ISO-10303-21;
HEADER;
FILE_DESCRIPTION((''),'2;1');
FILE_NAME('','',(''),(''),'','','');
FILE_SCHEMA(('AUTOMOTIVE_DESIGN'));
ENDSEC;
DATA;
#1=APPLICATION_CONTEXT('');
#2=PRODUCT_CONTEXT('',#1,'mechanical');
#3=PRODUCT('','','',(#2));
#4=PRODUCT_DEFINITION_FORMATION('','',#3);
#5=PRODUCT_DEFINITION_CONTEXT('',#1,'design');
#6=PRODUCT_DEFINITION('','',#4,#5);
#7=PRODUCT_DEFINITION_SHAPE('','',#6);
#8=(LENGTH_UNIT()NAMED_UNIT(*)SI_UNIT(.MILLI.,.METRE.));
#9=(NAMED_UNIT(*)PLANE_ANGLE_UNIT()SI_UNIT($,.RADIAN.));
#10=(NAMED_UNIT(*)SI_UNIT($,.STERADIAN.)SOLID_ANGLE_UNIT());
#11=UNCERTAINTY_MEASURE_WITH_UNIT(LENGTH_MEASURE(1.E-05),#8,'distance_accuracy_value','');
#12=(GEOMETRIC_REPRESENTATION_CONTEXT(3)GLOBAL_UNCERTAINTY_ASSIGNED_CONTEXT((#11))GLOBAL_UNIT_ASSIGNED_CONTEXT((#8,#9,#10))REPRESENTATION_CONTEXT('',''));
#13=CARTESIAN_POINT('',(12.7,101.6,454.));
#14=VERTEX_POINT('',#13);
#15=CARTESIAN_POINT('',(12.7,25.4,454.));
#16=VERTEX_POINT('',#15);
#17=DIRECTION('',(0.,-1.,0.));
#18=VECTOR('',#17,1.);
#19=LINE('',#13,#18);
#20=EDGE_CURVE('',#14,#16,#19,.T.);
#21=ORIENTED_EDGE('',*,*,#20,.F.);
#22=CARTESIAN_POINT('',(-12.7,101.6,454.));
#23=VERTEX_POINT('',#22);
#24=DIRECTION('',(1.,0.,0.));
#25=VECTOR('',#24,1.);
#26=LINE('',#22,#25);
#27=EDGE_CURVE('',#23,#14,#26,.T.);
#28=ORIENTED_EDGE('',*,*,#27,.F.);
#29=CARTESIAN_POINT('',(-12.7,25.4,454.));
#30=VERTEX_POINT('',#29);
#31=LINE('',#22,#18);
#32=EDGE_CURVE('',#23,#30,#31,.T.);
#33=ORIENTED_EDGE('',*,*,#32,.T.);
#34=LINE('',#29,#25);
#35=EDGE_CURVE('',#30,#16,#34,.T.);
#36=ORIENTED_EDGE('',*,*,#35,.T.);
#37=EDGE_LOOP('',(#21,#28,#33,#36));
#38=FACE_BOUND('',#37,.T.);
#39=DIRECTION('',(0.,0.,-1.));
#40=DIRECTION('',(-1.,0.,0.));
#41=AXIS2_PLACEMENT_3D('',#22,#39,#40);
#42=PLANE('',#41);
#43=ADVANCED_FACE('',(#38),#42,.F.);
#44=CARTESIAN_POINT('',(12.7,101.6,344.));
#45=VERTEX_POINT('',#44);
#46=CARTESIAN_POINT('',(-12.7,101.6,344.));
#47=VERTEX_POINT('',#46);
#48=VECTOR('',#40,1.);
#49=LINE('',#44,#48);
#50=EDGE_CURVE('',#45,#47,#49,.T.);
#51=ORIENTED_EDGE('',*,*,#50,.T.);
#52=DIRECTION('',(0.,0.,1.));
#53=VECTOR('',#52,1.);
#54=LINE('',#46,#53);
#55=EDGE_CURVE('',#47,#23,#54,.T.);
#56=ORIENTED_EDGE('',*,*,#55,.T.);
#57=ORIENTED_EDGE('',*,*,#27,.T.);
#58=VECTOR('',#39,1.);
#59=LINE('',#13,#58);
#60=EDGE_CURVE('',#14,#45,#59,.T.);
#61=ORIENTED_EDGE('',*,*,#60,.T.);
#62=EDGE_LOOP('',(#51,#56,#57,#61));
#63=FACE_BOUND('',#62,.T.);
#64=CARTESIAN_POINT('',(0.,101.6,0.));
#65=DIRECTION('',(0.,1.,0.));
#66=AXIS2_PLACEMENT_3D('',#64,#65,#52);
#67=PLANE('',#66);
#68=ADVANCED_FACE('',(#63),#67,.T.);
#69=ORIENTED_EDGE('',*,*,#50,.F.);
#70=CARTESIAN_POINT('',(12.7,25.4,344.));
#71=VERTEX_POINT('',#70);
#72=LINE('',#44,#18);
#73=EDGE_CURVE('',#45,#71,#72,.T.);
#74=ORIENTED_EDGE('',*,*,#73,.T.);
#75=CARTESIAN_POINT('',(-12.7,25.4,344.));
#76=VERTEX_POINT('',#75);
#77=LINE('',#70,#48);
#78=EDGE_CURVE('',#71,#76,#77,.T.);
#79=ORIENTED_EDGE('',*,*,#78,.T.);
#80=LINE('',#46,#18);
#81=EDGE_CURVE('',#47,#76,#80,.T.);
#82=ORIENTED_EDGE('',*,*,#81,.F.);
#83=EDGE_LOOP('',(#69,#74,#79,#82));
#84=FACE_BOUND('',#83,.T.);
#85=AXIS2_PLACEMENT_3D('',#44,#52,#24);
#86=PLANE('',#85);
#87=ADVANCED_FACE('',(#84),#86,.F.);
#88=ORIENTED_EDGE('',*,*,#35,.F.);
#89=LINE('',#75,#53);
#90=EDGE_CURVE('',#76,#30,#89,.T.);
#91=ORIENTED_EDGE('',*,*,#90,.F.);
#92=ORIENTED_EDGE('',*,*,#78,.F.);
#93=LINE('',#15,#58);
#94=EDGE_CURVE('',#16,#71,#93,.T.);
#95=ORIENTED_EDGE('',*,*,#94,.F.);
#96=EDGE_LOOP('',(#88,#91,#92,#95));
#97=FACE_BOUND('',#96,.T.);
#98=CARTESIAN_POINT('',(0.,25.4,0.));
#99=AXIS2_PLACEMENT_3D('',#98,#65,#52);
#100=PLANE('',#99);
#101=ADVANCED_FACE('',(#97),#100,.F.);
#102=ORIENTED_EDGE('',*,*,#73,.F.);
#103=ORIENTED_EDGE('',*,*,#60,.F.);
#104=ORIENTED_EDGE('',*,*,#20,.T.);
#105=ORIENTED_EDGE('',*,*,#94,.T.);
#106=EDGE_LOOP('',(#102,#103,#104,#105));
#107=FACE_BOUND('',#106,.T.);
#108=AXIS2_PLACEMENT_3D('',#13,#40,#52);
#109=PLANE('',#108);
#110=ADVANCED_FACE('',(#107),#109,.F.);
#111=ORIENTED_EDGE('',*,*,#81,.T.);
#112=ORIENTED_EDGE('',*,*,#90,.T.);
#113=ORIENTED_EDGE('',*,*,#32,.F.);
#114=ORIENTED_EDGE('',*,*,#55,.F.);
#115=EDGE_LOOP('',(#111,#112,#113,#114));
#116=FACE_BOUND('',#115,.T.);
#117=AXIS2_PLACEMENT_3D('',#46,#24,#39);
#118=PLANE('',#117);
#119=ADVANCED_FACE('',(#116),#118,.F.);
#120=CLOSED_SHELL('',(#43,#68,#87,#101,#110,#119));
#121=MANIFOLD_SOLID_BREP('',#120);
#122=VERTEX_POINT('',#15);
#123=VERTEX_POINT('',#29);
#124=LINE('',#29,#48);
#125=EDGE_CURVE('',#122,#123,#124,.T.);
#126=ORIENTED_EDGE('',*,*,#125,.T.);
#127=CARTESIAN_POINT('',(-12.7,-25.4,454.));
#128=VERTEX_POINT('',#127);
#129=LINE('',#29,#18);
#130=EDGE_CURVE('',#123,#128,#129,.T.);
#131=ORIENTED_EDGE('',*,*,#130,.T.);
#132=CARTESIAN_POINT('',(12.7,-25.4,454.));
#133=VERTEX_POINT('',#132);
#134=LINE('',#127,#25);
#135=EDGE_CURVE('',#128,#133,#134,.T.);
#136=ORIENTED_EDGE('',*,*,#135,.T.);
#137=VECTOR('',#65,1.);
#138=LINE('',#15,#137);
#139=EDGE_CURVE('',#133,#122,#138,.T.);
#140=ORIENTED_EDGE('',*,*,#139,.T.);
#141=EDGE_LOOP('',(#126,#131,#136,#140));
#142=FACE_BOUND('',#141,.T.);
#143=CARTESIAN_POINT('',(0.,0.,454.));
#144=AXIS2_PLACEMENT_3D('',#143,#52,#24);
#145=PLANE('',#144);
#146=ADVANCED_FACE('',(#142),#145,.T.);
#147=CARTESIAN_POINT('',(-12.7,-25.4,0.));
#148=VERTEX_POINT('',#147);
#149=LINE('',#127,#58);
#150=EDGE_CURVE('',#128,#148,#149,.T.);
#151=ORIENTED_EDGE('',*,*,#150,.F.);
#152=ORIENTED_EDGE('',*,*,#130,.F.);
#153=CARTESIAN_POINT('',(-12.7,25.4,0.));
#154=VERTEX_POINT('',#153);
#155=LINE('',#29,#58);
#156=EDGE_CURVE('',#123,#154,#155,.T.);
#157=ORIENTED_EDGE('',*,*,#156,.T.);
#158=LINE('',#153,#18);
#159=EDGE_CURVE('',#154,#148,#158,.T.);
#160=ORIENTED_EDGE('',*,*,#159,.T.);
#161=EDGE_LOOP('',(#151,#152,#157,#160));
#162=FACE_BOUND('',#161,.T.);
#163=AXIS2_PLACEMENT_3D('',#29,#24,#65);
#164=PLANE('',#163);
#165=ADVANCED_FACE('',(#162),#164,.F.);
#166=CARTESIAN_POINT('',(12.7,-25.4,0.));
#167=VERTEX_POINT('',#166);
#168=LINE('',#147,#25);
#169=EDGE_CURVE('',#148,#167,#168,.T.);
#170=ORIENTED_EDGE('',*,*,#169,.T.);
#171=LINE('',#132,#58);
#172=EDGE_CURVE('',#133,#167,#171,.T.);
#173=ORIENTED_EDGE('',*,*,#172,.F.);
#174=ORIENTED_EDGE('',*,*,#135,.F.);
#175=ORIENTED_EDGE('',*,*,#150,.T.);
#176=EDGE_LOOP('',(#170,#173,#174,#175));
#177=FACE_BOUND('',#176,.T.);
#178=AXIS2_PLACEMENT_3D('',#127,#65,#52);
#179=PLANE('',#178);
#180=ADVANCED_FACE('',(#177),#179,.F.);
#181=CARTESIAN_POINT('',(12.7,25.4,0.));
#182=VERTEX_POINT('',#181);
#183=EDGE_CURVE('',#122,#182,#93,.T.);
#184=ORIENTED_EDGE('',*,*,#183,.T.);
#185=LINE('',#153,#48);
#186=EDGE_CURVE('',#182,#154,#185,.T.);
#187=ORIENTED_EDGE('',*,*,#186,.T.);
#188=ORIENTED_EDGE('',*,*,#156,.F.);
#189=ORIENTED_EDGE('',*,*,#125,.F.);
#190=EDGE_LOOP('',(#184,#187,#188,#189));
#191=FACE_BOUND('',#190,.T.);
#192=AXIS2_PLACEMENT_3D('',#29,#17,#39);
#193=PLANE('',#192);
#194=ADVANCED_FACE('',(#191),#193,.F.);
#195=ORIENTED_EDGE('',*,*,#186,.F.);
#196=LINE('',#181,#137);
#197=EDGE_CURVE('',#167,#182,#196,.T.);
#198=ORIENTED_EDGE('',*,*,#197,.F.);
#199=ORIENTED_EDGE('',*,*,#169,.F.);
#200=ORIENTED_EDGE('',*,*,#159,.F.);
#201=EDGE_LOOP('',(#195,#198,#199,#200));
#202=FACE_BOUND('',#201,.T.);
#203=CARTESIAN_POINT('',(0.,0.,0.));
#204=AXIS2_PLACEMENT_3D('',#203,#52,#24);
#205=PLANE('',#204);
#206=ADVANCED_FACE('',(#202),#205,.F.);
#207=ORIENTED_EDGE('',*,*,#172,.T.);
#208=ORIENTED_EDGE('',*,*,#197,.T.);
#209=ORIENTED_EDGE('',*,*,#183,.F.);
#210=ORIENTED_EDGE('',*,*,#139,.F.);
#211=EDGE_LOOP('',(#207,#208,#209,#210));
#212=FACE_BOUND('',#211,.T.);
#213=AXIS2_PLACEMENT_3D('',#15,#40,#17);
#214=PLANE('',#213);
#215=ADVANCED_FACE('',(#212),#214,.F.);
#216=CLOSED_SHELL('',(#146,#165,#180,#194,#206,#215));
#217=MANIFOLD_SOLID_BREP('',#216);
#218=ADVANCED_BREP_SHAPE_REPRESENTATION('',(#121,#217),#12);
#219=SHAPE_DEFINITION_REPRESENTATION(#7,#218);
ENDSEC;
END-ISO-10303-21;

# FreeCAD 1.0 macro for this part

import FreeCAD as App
import Part
import Sketcher
Q = App.Units.Quantity

doc = App.newDocument("Part")
body = doc.addObject("PartDesign::Body", "Body")

# Sketch on XY plane
sketch1 = body.newObject("Sketcher::SketchObject", "Sketch")
sketch1.AttachmentSupport = (doc.getObject("XY_Plane"), [""])
sketch1.MapMode = "FlatFace"
sketch1.addGeometry(Part.LineSegment(App.Vector(-12.7, 25.4, 0), App.Vector(-12.7, -25.4, 0)), False)
sketch1.addGeometry(Part.LineSegment(App.Vector(-12.7, -25.4, 0), App.Vector(12.7, -25.4, 0)), False)
sketch1.addGeometry(Part.LineSegment(App.Vector(12.7, -25.4, 0), App.Vector(12.7, 25.4, 0)), False)
sketch1.addGeometry(Part.LineSegment(App.Vector(12.7, 25.4, 0), App.Vector(-12.7, 25.4, 0)), False)
sketch1.addConstraint(Sketcher.Constraint("Coincident", 0, 2, 1, 1))
sketch1.addConstraint(Sketcher.Constraint("Coincident", 1, 2, 2, 1))
sketch1.addConstraint(Sketcher.Constraint("Coincident", 2, 2, 3, 1))
sketch1.addConstraint(Sketcher.Constraint("Coincident", 3, 2, 0, 1))
sketch1.addConstraint(Sketcher.Constraint("Vertical", 0))
sketch1.addConstraint(Sketcher.Constraint("Horizontal", 1))
sketch1.addConstraint(Sketcher.Constraint("Vertical", 2))
sketch1.addConstraint(Sketcher.Constraint("Horizontal", 3))
sketch1.addConstraint(Sketcher.Constraint("Symmetric", 0, 2, 2, 2, -1, 1))
sketch1.addConstraint(Sketcher.Constraint("DistanceX", 1, 1, 1, 2, Q("1 in")))
sketch1.addConstraint(Sketcher.Constraint("DistanceY", 0, 2, 0, 1, Q("2 in")))
pad1 = body.newObject("PartDesign::Pad", "Pad")
pad1.Profile = sketch1
pad1.Length = 454
body2 = doc.addObject("PartDesign::Body", "Body001")

# Sketch on XZ plane
sketch2 = body2.newObject("Sketcher::SketchObject", "Sketch001")
sketch2.AttachmentSupport = (doc.getObject("XZ_Plane001"), [""])
sketch2.MapMode = "FlatFace"
sketch2.AttachmentOffset = App.Placement(App.Vector(0, 0, -1 * 25.4), App.Rotation())
sketch2.addGeometry(Part.LineSegment(App.Vector(-12.7, 344, 0), App.Vector(-12.7, 454, 0)), False)
sketch2.addGeometry(Part.LineSegment(App.Vector(-12.7, 454, 0), App.Vector(12.7, 454, 0)), False)
sketch2.addGeometry(Part.LineSegment(App.Vector(12.7, 454, 0), App.Vector(12.7, 344, 0)), False)
sketch2.addGeometry(Part.LineSegment(App.Vector(12.7, 344, 0), App.Vector(-12.7, 344, 0)), False)
sketch2.addConstraint(Sketcher.Constraint("Coincident", 0, 2, 1, 1))
sketch2.addConstraint(Sketcher.Constraint("Coincident", 1, 2, 2, 1))
sketch2.addConstraint(Sketcher.Constraint("Coincident", 2, 2, 3, 1))
sketch2.addConstraint(Sketcher.Constraint("Coincident", 3, 2, 0, 1))
sketch2.addConstraint(Sketcher.Constraint("Vertical", 0))
sketch2.addConstraint(Sketcher.Constraint("Horizontal", 1))
sketch2.addConstraint(Sketcher.Constraint("Vertical", 2))
sketch2.addConstraint(Sketcher.Constraint("Horizontal", 3))
sketch2.addConstraint(Sketcher.Constraint("DistanceX", 1, 1, 1, 2, Q("1 in")))
sketch2.addConstraint(Sketcher.Constraint("DistanceX", 0, 2, -1, 1, Q("0.5 in")))
sketch2.addConstraint(Sketcher.Constraint("DistanceY", 0, 1, 0, 2, Q("110 mm")))
sketch2.addConstraint(Sketcher.Constraint("DistanceY", -1, 1, 0, 2, Q("454 mm")))
pad2 = body2.newObject("PartDesign::Pad", "Pad001")
pad2.Profile = sketch2
pad2.Length = Q("3 in")
pad2.Reversed = True

doc.recompute()
